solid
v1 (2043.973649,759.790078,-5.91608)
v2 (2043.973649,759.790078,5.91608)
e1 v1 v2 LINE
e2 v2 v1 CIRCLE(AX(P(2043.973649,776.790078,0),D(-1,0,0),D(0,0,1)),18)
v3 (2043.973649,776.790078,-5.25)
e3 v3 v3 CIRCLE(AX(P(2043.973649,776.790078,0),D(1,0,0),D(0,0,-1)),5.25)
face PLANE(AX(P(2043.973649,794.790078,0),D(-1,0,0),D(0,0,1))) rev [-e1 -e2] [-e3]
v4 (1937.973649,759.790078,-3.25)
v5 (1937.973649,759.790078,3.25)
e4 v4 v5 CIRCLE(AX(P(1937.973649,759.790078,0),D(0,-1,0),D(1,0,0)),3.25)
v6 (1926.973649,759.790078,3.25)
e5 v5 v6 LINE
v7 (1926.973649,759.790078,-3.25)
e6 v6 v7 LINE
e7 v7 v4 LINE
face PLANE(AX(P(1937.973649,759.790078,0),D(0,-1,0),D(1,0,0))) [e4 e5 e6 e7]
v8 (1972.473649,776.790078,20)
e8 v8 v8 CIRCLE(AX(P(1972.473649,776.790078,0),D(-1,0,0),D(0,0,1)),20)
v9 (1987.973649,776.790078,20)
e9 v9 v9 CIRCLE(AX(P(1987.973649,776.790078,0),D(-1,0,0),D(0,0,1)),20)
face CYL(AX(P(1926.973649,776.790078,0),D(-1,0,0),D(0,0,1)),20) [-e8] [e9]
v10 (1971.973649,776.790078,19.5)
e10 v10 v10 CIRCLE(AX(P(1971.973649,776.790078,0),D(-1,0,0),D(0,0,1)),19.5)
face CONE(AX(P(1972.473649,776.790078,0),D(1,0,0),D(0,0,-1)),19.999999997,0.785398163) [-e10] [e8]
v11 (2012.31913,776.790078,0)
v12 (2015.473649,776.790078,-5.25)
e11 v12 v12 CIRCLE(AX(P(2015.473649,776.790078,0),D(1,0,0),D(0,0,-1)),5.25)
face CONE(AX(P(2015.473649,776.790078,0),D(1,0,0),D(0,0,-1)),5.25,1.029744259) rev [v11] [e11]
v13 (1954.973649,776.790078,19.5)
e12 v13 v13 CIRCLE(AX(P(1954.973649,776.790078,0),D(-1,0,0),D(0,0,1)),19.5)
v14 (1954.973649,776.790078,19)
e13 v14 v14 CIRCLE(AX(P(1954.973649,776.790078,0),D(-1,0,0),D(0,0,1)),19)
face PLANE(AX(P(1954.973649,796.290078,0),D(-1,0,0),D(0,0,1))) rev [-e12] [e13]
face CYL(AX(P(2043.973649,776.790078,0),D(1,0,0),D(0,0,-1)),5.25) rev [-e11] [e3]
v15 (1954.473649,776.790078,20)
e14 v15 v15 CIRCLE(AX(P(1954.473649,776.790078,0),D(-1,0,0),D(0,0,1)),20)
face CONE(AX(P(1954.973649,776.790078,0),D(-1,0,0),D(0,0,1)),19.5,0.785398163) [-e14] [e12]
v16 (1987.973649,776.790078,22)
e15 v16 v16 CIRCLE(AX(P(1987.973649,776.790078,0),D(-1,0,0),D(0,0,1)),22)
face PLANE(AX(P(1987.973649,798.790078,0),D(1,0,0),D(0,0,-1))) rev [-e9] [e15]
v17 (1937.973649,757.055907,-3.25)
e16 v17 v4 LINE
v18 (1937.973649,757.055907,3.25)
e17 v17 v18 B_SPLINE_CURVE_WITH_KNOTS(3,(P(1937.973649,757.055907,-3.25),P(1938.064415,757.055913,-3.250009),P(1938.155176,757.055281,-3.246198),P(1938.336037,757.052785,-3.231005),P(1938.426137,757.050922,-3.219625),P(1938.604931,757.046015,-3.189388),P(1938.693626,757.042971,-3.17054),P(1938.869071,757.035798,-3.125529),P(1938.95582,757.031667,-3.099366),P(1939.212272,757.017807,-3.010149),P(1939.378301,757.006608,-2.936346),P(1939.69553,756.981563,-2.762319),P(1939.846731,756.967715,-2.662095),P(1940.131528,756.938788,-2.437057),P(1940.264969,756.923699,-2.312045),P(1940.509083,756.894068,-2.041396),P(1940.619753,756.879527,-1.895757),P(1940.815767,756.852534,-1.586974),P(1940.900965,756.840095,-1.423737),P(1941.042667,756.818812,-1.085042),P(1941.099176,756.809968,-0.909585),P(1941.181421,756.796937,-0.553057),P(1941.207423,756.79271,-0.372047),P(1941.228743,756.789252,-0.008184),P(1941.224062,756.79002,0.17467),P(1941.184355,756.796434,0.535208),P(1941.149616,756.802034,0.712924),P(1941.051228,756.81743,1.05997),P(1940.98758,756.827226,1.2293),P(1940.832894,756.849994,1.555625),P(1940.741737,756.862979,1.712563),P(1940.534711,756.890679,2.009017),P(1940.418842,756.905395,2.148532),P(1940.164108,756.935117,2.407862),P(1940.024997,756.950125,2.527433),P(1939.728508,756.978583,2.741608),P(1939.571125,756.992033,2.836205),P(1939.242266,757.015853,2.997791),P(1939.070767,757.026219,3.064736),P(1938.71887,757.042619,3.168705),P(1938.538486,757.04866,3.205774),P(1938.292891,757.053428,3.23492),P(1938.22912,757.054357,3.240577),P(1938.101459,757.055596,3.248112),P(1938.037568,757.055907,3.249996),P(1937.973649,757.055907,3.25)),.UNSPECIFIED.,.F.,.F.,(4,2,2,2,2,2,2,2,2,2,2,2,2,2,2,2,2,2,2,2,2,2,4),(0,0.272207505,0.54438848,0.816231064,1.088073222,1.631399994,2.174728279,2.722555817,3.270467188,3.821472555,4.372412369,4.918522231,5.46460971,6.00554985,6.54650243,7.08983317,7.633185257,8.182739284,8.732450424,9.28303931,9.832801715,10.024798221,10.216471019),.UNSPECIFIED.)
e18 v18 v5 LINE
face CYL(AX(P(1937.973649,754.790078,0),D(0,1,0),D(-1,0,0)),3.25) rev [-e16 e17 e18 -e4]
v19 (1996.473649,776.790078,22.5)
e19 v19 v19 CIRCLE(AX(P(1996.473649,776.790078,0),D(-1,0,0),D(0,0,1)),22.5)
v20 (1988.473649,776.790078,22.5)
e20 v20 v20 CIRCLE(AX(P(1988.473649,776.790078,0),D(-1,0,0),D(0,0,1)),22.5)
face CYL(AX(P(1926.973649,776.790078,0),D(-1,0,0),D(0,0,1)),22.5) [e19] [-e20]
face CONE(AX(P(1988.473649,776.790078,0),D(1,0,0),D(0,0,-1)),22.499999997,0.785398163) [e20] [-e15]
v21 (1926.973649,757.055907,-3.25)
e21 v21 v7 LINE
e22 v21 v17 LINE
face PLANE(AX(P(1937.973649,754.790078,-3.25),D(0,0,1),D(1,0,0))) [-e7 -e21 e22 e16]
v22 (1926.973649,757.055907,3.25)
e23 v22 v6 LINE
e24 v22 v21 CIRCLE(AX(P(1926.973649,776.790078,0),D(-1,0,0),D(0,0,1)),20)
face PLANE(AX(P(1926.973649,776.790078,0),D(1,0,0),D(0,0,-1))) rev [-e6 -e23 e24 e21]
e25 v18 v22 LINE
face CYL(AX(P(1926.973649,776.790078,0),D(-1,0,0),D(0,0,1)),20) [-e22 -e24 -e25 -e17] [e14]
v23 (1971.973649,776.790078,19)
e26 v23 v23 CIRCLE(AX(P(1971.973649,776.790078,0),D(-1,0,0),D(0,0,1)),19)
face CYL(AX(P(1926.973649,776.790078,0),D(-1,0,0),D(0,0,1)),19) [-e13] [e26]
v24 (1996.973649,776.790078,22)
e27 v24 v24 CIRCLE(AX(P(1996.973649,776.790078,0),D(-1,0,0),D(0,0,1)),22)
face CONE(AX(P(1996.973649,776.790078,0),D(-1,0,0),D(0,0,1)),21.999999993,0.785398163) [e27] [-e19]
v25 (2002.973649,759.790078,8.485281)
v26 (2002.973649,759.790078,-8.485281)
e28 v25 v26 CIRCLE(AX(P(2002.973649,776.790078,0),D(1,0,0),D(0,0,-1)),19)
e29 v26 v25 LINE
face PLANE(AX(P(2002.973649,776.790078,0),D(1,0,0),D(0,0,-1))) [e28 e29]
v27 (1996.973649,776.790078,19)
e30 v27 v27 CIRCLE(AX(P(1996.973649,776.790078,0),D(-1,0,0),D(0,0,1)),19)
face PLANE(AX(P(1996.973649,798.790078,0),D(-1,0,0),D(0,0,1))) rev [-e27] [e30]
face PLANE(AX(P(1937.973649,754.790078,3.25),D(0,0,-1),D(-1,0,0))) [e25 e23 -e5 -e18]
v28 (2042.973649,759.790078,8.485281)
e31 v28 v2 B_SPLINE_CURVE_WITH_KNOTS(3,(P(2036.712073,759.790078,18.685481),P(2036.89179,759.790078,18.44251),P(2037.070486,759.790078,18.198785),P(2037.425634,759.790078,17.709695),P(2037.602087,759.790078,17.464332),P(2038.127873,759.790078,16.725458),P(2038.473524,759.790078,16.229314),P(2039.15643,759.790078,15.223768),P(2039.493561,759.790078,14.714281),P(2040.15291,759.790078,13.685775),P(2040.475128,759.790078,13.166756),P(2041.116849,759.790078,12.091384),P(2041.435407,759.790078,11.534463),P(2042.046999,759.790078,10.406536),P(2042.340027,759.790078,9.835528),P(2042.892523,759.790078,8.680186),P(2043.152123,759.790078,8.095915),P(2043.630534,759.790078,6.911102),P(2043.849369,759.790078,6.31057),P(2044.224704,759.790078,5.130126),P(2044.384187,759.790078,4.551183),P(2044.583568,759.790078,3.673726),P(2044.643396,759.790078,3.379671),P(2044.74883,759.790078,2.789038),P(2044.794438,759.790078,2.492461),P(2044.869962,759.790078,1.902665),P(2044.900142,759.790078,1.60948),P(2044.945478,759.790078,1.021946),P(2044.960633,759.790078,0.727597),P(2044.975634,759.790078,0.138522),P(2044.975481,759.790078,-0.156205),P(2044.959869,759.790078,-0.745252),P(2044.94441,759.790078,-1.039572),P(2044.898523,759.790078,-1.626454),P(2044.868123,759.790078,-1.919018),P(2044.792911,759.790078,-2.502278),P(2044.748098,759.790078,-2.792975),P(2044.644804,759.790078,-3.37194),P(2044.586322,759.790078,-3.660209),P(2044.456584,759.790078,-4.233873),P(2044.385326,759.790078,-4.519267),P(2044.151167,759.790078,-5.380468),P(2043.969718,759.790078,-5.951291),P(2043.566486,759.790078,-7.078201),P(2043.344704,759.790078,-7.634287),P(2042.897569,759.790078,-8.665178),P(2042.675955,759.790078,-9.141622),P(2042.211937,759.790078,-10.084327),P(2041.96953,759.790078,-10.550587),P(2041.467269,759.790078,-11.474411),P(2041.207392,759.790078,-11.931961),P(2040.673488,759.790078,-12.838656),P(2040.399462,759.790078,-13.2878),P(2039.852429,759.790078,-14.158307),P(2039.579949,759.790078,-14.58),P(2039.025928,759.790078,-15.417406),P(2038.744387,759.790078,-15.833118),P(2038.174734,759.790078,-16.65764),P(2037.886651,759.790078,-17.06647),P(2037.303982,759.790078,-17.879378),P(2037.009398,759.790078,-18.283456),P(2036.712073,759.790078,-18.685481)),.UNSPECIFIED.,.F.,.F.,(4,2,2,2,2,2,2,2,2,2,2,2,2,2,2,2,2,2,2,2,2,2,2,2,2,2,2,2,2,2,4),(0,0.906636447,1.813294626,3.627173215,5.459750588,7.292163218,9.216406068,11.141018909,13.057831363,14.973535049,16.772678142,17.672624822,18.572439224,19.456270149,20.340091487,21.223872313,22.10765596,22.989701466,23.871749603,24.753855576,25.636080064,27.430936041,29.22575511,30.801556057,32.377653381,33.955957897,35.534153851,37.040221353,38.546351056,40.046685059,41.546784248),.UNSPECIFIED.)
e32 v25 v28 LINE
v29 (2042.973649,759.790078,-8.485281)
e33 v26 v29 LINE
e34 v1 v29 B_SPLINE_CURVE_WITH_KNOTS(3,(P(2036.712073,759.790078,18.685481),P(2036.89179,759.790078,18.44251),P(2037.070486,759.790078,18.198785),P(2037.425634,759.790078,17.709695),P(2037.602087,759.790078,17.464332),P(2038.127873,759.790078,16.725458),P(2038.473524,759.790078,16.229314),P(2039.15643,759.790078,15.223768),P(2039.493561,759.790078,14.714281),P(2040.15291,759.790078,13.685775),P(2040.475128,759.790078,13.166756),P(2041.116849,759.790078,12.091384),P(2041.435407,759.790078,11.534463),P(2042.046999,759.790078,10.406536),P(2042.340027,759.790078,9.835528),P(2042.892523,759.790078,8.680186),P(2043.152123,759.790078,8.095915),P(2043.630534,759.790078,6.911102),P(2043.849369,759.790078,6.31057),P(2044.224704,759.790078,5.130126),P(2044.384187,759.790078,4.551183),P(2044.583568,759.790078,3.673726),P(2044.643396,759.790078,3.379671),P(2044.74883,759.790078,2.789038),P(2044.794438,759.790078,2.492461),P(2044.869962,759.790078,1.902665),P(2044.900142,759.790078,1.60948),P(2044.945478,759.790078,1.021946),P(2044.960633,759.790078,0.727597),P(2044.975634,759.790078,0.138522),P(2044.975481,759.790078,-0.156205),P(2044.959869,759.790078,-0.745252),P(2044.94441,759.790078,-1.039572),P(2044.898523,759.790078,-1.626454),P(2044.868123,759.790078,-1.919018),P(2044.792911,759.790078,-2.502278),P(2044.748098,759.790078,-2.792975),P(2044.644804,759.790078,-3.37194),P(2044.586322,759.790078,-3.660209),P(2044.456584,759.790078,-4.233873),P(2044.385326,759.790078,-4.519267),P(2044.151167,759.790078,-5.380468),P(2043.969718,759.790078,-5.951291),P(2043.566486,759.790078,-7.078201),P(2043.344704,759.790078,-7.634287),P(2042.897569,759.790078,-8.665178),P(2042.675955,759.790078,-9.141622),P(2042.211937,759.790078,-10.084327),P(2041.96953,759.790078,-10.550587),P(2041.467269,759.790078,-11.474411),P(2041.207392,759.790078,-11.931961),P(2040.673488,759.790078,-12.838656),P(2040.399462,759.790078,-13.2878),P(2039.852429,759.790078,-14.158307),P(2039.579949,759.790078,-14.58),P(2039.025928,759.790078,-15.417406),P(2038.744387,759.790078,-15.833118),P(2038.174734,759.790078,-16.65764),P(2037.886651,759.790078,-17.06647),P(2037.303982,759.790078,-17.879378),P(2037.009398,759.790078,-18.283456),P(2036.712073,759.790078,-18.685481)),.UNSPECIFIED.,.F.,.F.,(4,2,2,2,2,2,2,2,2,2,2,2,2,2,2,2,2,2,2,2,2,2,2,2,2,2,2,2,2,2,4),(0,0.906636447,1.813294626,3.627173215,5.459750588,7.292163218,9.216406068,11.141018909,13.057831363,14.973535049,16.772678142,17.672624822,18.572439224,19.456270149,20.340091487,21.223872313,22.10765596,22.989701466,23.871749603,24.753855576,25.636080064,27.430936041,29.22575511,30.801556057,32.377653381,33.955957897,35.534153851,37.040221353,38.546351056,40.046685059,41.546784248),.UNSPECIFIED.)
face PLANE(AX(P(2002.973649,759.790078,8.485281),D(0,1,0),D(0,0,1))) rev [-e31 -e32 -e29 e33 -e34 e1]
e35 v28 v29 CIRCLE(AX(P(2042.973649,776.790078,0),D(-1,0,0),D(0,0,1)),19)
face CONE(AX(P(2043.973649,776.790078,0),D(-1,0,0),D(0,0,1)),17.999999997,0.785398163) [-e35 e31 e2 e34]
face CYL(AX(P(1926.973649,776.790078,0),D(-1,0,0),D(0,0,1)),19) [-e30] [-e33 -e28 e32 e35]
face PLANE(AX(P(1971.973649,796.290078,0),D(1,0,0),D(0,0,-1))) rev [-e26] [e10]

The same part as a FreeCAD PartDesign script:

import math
import FreeCAD as App
import Part
import Sketcher

V = App.Vector
Q = App.Units.Quantity

doc = App.newDocument("Part")
params = doc.addObject("Spreadsheet::Sheet", "Params")
for row, (alias, value) in enumerate([
    ("sketch1_width", "46 mm"),
    ("sketch1_width2", "8 mm"),
    ("sketch1_width3", "17 mm"),
    ("sketch1_width4", "117 mm"),
    ("sketch1_height", "18 mm"),
    ("revolution_angle", "360 deg"),
    ("sketch2_radius", "19 mm"),
    ("pocket1_length", "41 mm"),
    ("sketch3_diameter", "10.5 mm"),
    ("hole_diameter", "10.5 mm"),
    ("hole_depth", "28.5 mm"),
    ("sketch4_width", "11 mm"),
    ("sketch4_radius", "3.25 mm"),
    ("pocket2_length", "5 mm"),
], start=1):
    params.set(f"A{row}", alias)
    params.set(f"B{row}", "=" + value)
    params.setAlias(f"B{row}", alias)

body = doc.addObject("PartDesign::Body", "Body")

# Sketch on XY plane
sketch1 = doc.addObject("Sketcher::SketchObject", "Sketch")
body.addObject(sketch1)
sketch1.AttachmentSupport = (doc.XY_Plane, [""])
sketch1.MapMode = "FlatFace"
sketch1.addGeometry([
    Part.LineSegment(V(2043.973649, 776.790078, 0), V(2043.973649, 794.790078, 0)),  # 0
    Part.LineSegment(V(2043.973649, 794.790078, 0), V(2042.973649, 795.790078, 0)),  # 1
    Part.LineSegment(V(2042.973649, 795.790078, 0), V(1996.973649, 795.790078, 0)),  # 2
    Part.LineSegment(V(1996.973649, 795.790078, 0), V(1996.973649, 798.790078, 0)),  # 3
    Part.LineSegment(V(1996.973649, 798.790078, 0), V(1996.473649, 799.290078, 0)),  # 4
    Part.LineSegment(V(1996.473649, 799.290078, 0), V(1988.473649, 799.290078, 0)),  # 5
    Part.LineSegment(V(1988.473649, 799.290078, 0), V(1987.973649, 798.790078, 0)),  # 6
    Part.LineSegment(V(1987.973649, 798.790078, 0), V(1987.973649, 796.790078, 0)),  # 7
    Part.LineSegment(V(1987.973649, 796.790078, 0), V(1972.473649, 796.790078, 0)),  # 8
    Part.LineSegment(V(1972.473649, 796.790078, 0), V(1971.973649, 796.290078, 0)),  # 9
    Part.LineSegment(V(1971.973649, 796.290078, 0), V(1971.973649, 795.790078, 0)),  # 10
    Part.LineSegment(V(1971.973649, 795.790078, 0), V(1954.973649, 795.790078, 0)),  # 11
    Part.LineSegment(V(1954.973649, 795.790078, 0), V(1954.973649, 796.290078, 0)),  # 12
    Part.LineSegment(V(1954.973649, 796.290078, 0), V(1954.473649, 796.790078, 0)),  # 13
    Part.LineSegment(V(1954.473649, 796.790078, 0), V(1926.973649, 796.790078, 0)),  # 14
    Part.LineSegment(V(1926.973649, 796.790078, 0), V(1926.973649, 776.790078, 0)),  # 15
    Part.LineSegment(V(1926.973649, 776.790078, 0), V(2043.973649, 776.790078, 0)),  # 16
], False)
sketch1.addGeometry(Part.LineSegment(V(1926.973649, 776.790078, 0), V(2043.973649, 776.790078, 0)), True)  # axis
sketch1.addConstraint([
    Sketcher.Constraint("Coincident", 0, 2, 1, 1),
    Sketcher.Constraint("Coincident", 1, 2, 2, 1),
    Sketcher.Constraint("Coincident", 2, 2, 3, 1),
    Sketcher.Constraint("Coincident", 3, 2, 4, 1),
    Sketcher.Constraint("Coincident", 4, 2, 5, 1),
    Sketcher.Constraint("Coincident", 5, 2, 6, 1),
    Sketcher.Constraint("Coincident", 6, 2, 7, 1),
    Sketcher.Constraint("Coincident", 7, 2, 8, 1),
    Sketcher.Constraint("Coincident", 8, 2, 9, 1),
    Sketcher.Constraint("Coincident", 9, 2, 10, 1),
    Sketcher.Constraint("Coincident", 10, 2, 11, 1),
    Sketcher.Constraint("Coincident", 11, 2, 12, 1),
    Sketcher.Constraint("Coincident", 12, 2, 13, 1),
    Sketcher.Constraint("Coincident", 13, 2, 14, 1),
    Sketcher.Constraint("Coincident", 14, 2, 15, 1),
    Sketcher.Constraint("Coincident", 15, 2, 16, 1),
    Sketcher.Constraint("Coincident", 16, 2, 0, 1),
    Sketcher.Constraint("Vertical", 0),
    Sketcher.Constraint("Horizontal", 2),
    Sketcher.Constraint("Vertical", 3),
    Sketcher.Constraint("Horizontal", 5),
    Sketcher.Constraint("Vertical", 7),
    Sketcher.Constraint("Horizontal", 8),
    Sketcher.Constraint("Vertical", 10),
    Sketcher.Constraint("Horizontal", 11),
    Sketcher.Constraint("Vertical", 12),
    Sketcher.Constraint("Horizontal", 14),
    Sketcher.Constraint("Vertical", 15),
    Sketcher.Constraint("Horizontal", 16),
    Sketcher.Constraint("Horizontal", 17),
    Sketcher.Constraint("Coincident", 17, 1, 15, 2),
    Sketcher.Constraint("Parallel", 1, 4),
    Sketcher.Constraint("Perpendicular", 4, 6),
    Sketcher.Constraint("Parallel", 6, 9),
    Sketcher.Constraint("Perpendicular", 9, 13),
    Sketcher.Constraint("Horizontal", 3, 2, 6, 2),
    Sketcher.Constraint("Horizontal", 2, 2, 10, 2),
    Sketcher.Constraint("Horizontal", 9, 2, 12, 2),
    Sketcher.Constraint("Horizontal", 8, 2, 13, 2),
    Sketcher.Constraint("Vertical", 0, 2, 17, 2),
    Sketcher.Constraint("Equal", 4, 6),
    Sketcher.Constraint("Equal", 6, 9),
    Sketcher.Constraint("DistanceX", 2, 2, 2, 1, Q("46 mm")),
    Sketcher.Constraint("DistanceX", 5, 2, 5, 1, Q("8 mm")),
    Sketcher.Constraint("DistanceX", 11, 2, 11, 1, Q("17 mm")),
    Sketcher.Constraint("DistanceX", 16, 1, 16, 2, Q("117 mm")),
    Sketcher.Constraint("DistanceY", 0, 1, 0, 2, Q("18 mm")),
    Sketcher.Constraint("DistanceY", 3, 1, 3, 2, Q("3 mm")),
    Sketcher.Constraint("DistanceY", 7, 2, 7, 1, Q("2 mm")),
    Sketcher.Constraint("DistanceY", 15, 2, 15, 1, Q("20 mm")),
    Sketcher.Constraint("DistanceX", 8, 2, 8, 1, Q("15.5 mm")),
    Sketcher.Constraint("DistanceX", 14, 2, 14, 1, Q("27.5 mm")),
    Sketcher.Constraint("DistanceX", -1, 1, 0, 2, Q("2043.973649 mm")),
    Sketcher.Constraint("DistanceY", -1, 1, 0, 2, Q("794.790078 mm")),
])
sketch1.setExpression("Constraints[42]", "Params.sketch1_width")
sketch1.setExpression("Constraints[43]", "Params.sketch1_width2")
sketch1.setExpression("Constraints[44]", "Params.sketch1_width3")
sketch1.setExpression("Constraints[45]", "Params.sketch1_width4")
sketch1.setExpression("Constraints[46]", "Params.sketch1_height")
revolution = doc.addObject("PartDesign::Revolution", "Revolution")
body.addObject(revolution)
revolution.Profile = sketch1
revolution.ReferenceAxis = (sketch1, ["Axis0"])
revolution.setExpression("Angle", "Params.revolution_angle")

# Sketch on YZ plane
sketch2 = doc.addObject("Sketcher::SketchObject", "Sketch001")
body.addObject(sketch2)
sketch2.AttachmentSupport = (doc.YZ_Plane, [""])
sketch2.MapMode = "FlatFace"
sketch2.AttachmentOffset = App.Placement(V(0, 0, 2043.973649), App.Rotation())
sketch2.addGeometry([
    Part.LineSegment(V(760, -8, 0), V(760, 8, 0)),
    Part.ArcOfCircle(Part.Circle(V(777, 0, 0), V(0, 0, 1), 19), math.radians(153), math.radians(207)),
], False)
sketch2.addConstraint([
    Sketcher.Constraint("Coincident", 0, 1, 1, 2),
    Sketcher.Constraint("Coincident", 1, 1, 0, 2),
    Sketcher.Constraint("Vertical", 0),
    Sketcher.Constraint("PointOnObject", 1, 3, -1),
    Sketcher.Constraint("Radius", 1, Q("19 mm")),
    Sketcher.Constraint("DistanceX", 0, 1, 1, 3, Q("17 mm")),
    Sketcher.Constraint("DistanceX", -1, 1, 1, 3, Q("776.790078 mm")),
])
sketch2.setExpression("Constraints[4]", "Params.sketch2_radius")
pocket1 = doc.addObject("PartDesign::Pocket", "Pocket")
body.addObject(pocket1)
pocket1.Profile = sketch2
pocket1.setExpression("Length", "Params.pocket1_length")

# Sketch on YZ plane
sketch3 = doc.addObject("Sketcher::SketchObject", "Sketch002")
body.addObject(sketch3)
sketch3.AttachmentSupport = (doc.YZ_Plane, [""])
sketch3.MapMode = "FlatFace"
sketch3.AttachmentOffset = App.Placement(V(0, 0, 2043.973649), App.Rotation())
sketch3.addGeometry(Part.Circle(V(777, 0, 0), V(0, 0, 1), 5), False)
sketch3.addConstraint([
    Sketcher.Constraint("PointOnObject", 0, 3, -1),
    Sketcher.Constraint("Diameter", 0, Q("10.5 mm")),
    Sketcher.Constraint("DistanceX", -1, 1, 0, 3, Q("776.790078 mm")),
])
sketch3.setExpression("Constraints[1]", "Params.sketch3_diameter")
doc.recompute()
hole = doc.addObject("PartDesign::Hole", "Hole")
body.addObject(hole)
hole.Profile = sketch3
hole.ThreadType = "None"
hole.setExpression("Diameter", "Params.hole_diameter")
hole.DepthType = "Dimension"
hole.setExpression("Depth", "Params.hole_depth")
hole.DrillPoint = "Angled"
hole.DrillPointAngle = 118

# Sketch on XZ plane
sketch4 = doc.addObject("Sketcher::SketchObject", "Sketch003")
body.addObject(sketch4)
sketch4.AttachmentSupport = (doc.XZ_Plane, [""])
sketch4.MapMode = "FlatFace"
sketch4.AttachmentOffset = App.Placement(V(0, 0, -759.790078), App.Rotation())
sketch4.addGeometry([
    Part.LineSegment(V(1938, 3.2, 0), V(1927, 3.2, 0)),
    Part.LineSegment(V(1927, 3.2, 0), V(1927, -3.2, 0)),
    Part.LineSegment(V(1927, -3.2, 0), V(1938, -3.2, 0)),
    Part.ArcOfCircle(Part.Circle(V(1938, 0, 0), V(0, 0, 1), 3.2), math.radians(-90), math.radians(90)),
], False)
sketch4.addConstraint([
    Sketcher.Constraint("Coincident", 0, 2, 1, 1),
    Sketcher.Constraint("Coincident", 1, 2, 2, 1),
    Sketcher.Constraint("Tangent", 2, 2, 3, 1),
    Sketcher.Constraint("Tangent", 3, 2, 0, 1),
    Sketcher.Constraint("Horizontal", 0),
    Sketcher.Constraint("Vertical", 1),
    Sketcher.Constraint("Horizontal", 2),
    Sketcher.Constraint("PointOnObject", 3, 3, -1),
    Sketcher.Constraint("DistanceX", 0, 2, 0, 1, Q("11 mm")),
    Sketcher.Constraint("Radius", 3, Q("3.25 mm")),
    Sketcher.Constraint("DistanceX", -1, 1, 3, 3, Q("1937.973649 mm")),
])
sketch4.setExpression("Constraints[8]", "Params.sketch4_width")
sketch4.setExpression("Constraints[9]", "Params.sketch4_radius")
pocket2 = doc.addObject("PartDesign::Pocket", "Pocket001")
body.addObject(pocket2)
pocket2.Profile = sketch4
pocket2.setExpression("Length", "Params.pocket2_length")
pocket2.Reversed = True

doc.recompute()
